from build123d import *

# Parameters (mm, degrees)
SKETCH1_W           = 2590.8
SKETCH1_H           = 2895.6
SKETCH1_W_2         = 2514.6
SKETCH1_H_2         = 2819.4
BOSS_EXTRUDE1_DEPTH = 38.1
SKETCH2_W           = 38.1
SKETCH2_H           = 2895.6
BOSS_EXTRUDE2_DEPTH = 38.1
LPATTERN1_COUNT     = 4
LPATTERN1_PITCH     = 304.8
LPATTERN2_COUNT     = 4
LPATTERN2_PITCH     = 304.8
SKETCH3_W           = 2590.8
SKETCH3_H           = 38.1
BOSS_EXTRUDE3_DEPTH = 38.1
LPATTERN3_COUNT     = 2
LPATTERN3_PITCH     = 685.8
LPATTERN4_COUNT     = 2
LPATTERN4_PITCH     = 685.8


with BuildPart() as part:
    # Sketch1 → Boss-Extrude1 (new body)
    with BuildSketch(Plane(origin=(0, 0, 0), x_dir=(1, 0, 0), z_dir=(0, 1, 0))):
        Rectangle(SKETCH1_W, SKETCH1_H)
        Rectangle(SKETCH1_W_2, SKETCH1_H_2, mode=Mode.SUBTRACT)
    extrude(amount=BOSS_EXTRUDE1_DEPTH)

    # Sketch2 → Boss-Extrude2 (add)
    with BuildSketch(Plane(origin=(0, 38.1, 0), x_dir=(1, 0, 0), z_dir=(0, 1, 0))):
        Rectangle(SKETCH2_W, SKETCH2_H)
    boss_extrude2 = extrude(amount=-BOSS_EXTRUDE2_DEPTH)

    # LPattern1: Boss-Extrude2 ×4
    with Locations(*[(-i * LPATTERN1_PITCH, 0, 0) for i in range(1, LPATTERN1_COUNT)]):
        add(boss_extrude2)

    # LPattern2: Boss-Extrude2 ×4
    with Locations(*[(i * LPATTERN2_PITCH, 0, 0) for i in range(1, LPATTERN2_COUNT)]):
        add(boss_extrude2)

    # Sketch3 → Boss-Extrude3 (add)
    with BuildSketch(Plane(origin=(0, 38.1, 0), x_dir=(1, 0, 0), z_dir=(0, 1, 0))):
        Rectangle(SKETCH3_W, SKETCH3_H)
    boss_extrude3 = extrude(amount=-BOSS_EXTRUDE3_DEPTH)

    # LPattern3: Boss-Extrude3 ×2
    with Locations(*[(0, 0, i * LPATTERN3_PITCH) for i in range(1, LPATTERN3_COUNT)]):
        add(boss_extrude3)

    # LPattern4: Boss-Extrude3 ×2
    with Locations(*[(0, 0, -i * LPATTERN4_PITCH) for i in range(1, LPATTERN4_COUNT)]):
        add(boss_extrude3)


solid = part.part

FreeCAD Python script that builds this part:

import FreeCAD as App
import Part
import Sketcher
Q = App.Units.Quantity

doc = App.newDocument("Part")
body = doc.addObject("PartDesign::Body", "Body")

# Sketch on XZ plane
sketch1 = body.newObject("Sketcher::SketchObject", "Sketch")
sketch1.AttachmentSupport = (doc.getObject("XZ_Plane"), [""])
sketch1.MapMode = "FlatFace"
sketch1.addGeometry(Part.LineSegment(App.Vector(-1295, -1448, 0), App.Vector(-1295, 1448, 0)), False)
sketch1.addGeometry(Part.LineSegment(App.Vector(-1295, 1448, 0), App.Vector(1295, 1448, 0)), False)
sketch1.addGeometry(Part.LineSegment(App.Vector(1295, 1448, 0), App.Vector(1295, -1448, 0)), False)
sketch1.addGeometry(Part.LineSegment(App.Vector(1295, -1448, 0), App.Vector(-1295, -1448, 0)), False)
sketch1.addGeometry(Part.LineSegment(App.Vector(1257, 1410, 0), App.Vector(-1257, 1410, 0)), False)
sketch1.addGeometry(Part.LineSegment(App.Vector(-1257, 1410, 0), App.Vector(-1257, -1410, 0)), False)
sketch1.addGeometry(Part.LineSegment(App.Vector(-1257, -1410, 0), App.Vector(1257, -1410, 0)), False)
sketch1.addGeometry(Part.LineSegment(App.Vector(1257, -1410, 0), App.Vector(1257, 1410, 0)), False)
sketch1.addConstraint(Sketcher.Constraint("Coincident", 0, 2, 1, 1))
sketch1.addConstraint(Sketcher.Constraint("Coincident", 1, 2, 2, 1))
sketch1.addConstraint(Sketcher.Constraint("Coincident", 2, 2, 3, 1))
sketch1.addConstraint(Sketcher.Constraint("Coincident", 3, 2, 0, 1))
sketch1.addConstraint(Sketcher.Constraint("Coincident", 4, 2, 5, 1))
sketch1.addConstraint(Sketcher.Constraint("Coincident", 5, 2, 6, 1))
sketch1.addConstraint(Sketcher.Constraint("Coincident", 6, 2, 7, 1))
sketch1.addConstraint(Sketcher.Constraint("Coincident", 7, 2, 4, 1))
sketch1.addConstraint(Sketcher.Constraint("Vertical", 0))
sketch1.addConstraint(Sketcher.Constraint("Horizontal", 1))
sketch1.addConstraint(Sketcher.Constraint("Vertical", 2))
sketch1.addConstraint(Sketcher.Constraint("Horizontal", 3))
sketch1.addConstraint(Sketcher.Constraint("Horizontal", 4))
sketch1.addConstraint(Sketcher.Constraint("Vertical", 5))
sketch1.addConstraint(Sketcher.Constraint("Horizontal", 6))
sketch1.addConstraint(Sketcher.Constraint("Vertical", 7))
sketch1.addConstraint(Sketcher.Constraint("Symmetric", 0, 2, 2, 2, -1, 1))
sketch1.addConstraint(Sketcher.Constraint("Symmetric", 4, 2, 6, 2, -1, 1))
sketch1.addConstraint(Sketcher.Constraint("DistanceX", 1, 1, 1, 2, Q("102 in")))
sketch1.addConstraint(Sketcher.Constraint("DistanceX", 4, 2, 4, 1, Q("99 in")))
sketch1.addConstraint(Sketcher.Constraint("DistanceY", 0, 1, 0, 2, Q("114 in")))
sketch1.addConstraint(Sketcher.Constraint("DistanceY", 5, 2, 5, 1, Q("111 in")))
pad1 = body.newObject("PartDesign::Pad", "Pad")
pad1.Profile = sketch1
pad1.Length = Q("1.5 in")
pad1.Reversed = True

# Sketch on XZ plane
sketch2 = body.newObject("Sketcher::SketchObject", "Sketch001")
sketch2.AttachmentSupport = (doc.getObject("XZ_Plane"), [""])
sketch2.MapMode = "FlatFace"
sketch2.AttachmentOffset = App.Placement(App.Vector(0, 0, -1.5 * 25.4), App.Rotation())
sketch2.addGeometry(Part.LineSegment(App.Vector(-19, -1448, 0), App.Vector(-19, 1448, 0)), False)
sketch2.addGeometry(Part.LineSegment(App.Vector(-19, 1448, 0), App.Vector(19, 1448, 0)), False)
sketch2.addGeometry(Part.LineSegment(App.Vector(19, 1448, 0), App.Vector(19, -1448, 0)), False)
sketch2.addGeometry(Part.LineSegment(App.Vector(19, -1448, 0), App.Vector(-19, -1448, 0)), False)
sketch2.addConstraint(Sketcher.Constraint("Coincident", 0, 2, 1, 1))
sketch2.addConstraint(Sketcher.Constraint("Coincident", 1, 2, 2, 1))
sketch2.addConstraint(Sketcher.Constraint("Coincident", 2, 2, 3, 1))
sketch2.addConstraint(Sketcher.Constraint("Coincident", 3, 2, 0, 1))
sketch2.addConstraint(Sketcher.Constraint("Vertical", 0))
sketch2.addConstraint(Sketcher.Constraint("Horizontal", 1))
sketch2.addConstraint(Sketcher.Constraint("Vertical", 2))
sketch2.addConstraint(Sketcher.Constraint("Horizontal", 3))
sketch2.addConstraint(Sketcher.Constraint("Symmetric", 0, 2, 2, 2, -1, 1))
sketch2.addConstraint(Sketcher.Constraint("DistanceY", 0, 1, 0, 2, Q("114 in")))
sketch2.addConstraint(Sketcher.Constraint("DistanceX", 1, 1, 1, 2, Q("1.5 in")))
pad2 = body.newObject("PartDesign::Pad", "Pad001")
pad2.Profile = sketch2
pad2.Length = Q("1.5 in")
doc.recompute()

linearpattern = body.newObject("PartDesign::LinearPattern", "LinearPattern")
linearpattern.Originals = [pad2]
linearpattern.Direction = (doc.getObject("X_Axis"), [""])
linearpattern.Mode = "offset"
linearpattern.Offset = Q("12 in")
linearpattern.Occurrences = 4
linearpattern.Reversed = True
body.Tip = linearpattern
doc.recompute()

linearpattern2 = body.newObject("PartDesign::LinearPattern", "LinearPattern001")
linearpattern2.Originals = [pad2]
linearpattern2.Direction = (doc.getObject("X_Axis"), [""])
linearpattern2.Mode = "offset"
linearpattern2.Offset = Q("12 in")
linearpattern2.Occurrences = 4
body.Tip = linearpattern2

# Sketch on XZ plane
sketch3 = body.newObject("Sketcher::SketchObject", "Sketch002")
sketch3.AttachmentSupport = (doc.getObject("XZ_Plane"), [""])
sketch3.MapMode = "FlatFace"
sketch3.AttachmentOffset = App.Placement(App.Vector(0, 0, -1.5 * 25.4), App.Rotation())
sketch3.addGeometry(Part.LineSegment(App.Vector(-1295, -19, 0), App.Vector(-1295, 19, 0)), False)
sketch3.addGeometry(Part.LineSegment(App.Vector(-1295, 19, 0), App.Vector(1295, 19, 0)), False)
sketch3.addGeometry(Part.LineSegment(App.Vector(1295, 19, 0), App.Vector(1295, -19, 0)), False)
sketch3.addGeometry(Part.LineSegment(App.Vector(1295, -19, 0), App.Vector(-1295, -19, 0)), False)
sketch3.addConstraint(Sketcher.Constraint("Coincident", 0, 2, 1, 1))
sketch3.addConstraint(Sketcher.Constraint("Coincident", 1, 2, 2, 1))
sketch3.addConstraint(Sketcher.Constraint("Coincident", 2, 2, 3, 1))
sketch3.addConstraint(Sketcher.Constraint("Coincident", 3, 2, 0, 1))
sketch3.addConstraint(Sketcher.Constraint("Vertical", 0))
sketch3.addConstraint(Sketcher.Constraint("Horizontal", 1))
sketch3.addConstraint(Sketcher.Constraint("Vertical", 2))
sketch3.addConstraint(Sketcher.Constraint("Horizontal", 3))
sketch3.addConstraint(Sketcher.Constraint("Symmetric", 0, 2, 2, 2, -1, 1))
sketch3.addConstraint(Sketcher.Constraint("DistanceX", 1, 1, 1, 2, Q("102 in")))
sketch3.addConstraint(Sketcher.Constraint("DistanceY", 0, 1, 0, 2, Q("1.5 in")))
pad3 = body.newObject("PartDesign::Pad", "Pad002")
pad3.Profile = sketch3
pad3.Length = Q("1.5 in")
doc.recompute()

linearpattern3 = body.newObject("PartDesign::LinearPattern", "LinearPattern002")
linearpattern3.Originals = [pad3]
linearpattern3.Direction = (doc.getObject("Z_Axis"), [""])
linearpattern3.Mode = "offset"
linearpattern3.Offset = Q("27 in")
linearpattern3.Occurrences = 2
body.Tip = linearpattern3
doc.recompute()

linearpattern4 = body.newObject("PartDesign::LinearPattern", "LinearPattern003")
linearpattern4.Originals = [pad3]
linearpattern4.Direction = (doc.getObject("Z_Axis"), [""])
linearpattern4.Mode = "offset"
linearpattern4.Offset = Q("27 in")
linearpattern4.Occurrences = 2
linearpattern4.Reversed = True
body.Tip = linearpattern4

doc.recompute()
